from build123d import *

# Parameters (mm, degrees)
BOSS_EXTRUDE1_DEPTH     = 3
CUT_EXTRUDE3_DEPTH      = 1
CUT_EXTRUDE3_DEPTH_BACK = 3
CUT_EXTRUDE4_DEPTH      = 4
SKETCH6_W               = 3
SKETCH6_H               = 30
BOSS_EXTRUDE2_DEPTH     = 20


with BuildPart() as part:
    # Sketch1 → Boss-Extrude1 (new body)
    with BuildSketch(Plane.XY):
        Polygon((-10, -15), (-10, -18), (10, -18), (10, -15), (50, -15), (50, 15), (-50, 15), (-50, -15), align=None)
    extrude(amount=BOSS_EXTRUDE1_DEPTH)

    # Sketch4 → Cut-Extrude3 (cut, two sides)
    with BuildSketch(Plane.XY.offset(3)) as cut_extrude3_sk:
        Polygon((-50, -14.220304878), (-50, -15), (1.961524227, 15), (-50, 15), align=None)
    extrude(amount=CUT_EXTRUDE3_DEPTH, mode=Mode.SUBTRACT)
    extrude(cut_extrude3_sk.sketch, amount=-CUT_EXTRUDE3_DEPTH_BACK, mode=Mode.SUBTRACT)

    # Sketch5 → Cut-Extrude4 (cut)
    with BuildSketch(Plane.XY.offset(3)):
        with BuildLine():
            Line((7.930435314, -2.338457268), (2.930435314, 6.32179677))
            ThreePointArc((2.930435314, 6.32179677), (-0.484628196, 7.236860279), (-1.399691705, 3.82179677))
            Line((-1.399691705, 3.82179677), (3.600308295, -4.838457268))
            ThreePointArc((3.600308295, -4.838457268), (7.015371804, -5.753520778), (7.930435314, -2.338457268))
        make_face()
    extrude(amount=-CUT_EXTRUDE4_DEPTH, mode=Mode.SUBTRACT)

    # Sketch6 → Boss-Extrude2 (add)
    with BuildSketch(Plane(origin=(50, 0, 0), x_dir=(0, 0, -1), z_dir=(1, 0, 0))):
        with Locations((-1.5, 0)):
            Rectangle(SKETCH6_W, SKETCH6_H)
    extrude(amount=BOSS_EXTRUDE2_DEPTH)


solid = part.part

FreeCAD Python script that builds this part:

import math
import FreeCAD as App
import Part
import Sketcher
from FreeCAD import Vector
Q = App.Units.Quantity

doc = App.newDocument("Part")
body = doc.addObject("PartDesign::Body", "Body")

# Sketch on XY plane
sketch1 = body.newObject("Sketcher::SketchObject", "Sketch")
sketch1.AttachmentSupport = (doc.getObject("XY_Plane"), [""])
sketch1.MapMode = "FlatFace"
sketch1.addGeometry(Part.LineSegment(Vector(-10, -15, 0), Vector(-10, -18, 0)), False)
sketch1.addGeometry(Part.LineSegment(Vector(-10, -18, 0), Vector(10, -18, 0)), False)
sketch1.addGeometry(Part.LineSegment(Vector(10, -18, 0), Vector(10, -15, 0)), False)
sketch1.addGeometry(Part.LineSegment(Vector(10, -15, 0), Vector(50, -15, 0)), False)
sketch1.addGeometry(Part.LineSegment(Vector(50, -15, 0), Vector(50, 15, 0)), False)
sketch1.addGeometry(Part.LineSegment(Vector(50, 15, 0), Vector(-50, 15, 0)), False)
sketch1.addGeometry(Part.LineSegment(Vector(-50, 15, 0), Vector(-50, -15, 0)), False)
sketch1.addGeometry(Part.LineSegment(Vector(-50, -15, 0), Vector(-10, -15, 0)), False)
sketch1.addConstraint(Sketcher.Constraint("Coincident", 0, 2, 1, 1))
sketch1.addConstraint(Sketcher.Constraint("Coincident", 1, 2, 2, 1))
sketch1.addConstraint(Sketcher.Constraint("Coincident", 2, 2, 3, 1))
sketch1.addConstraint(Sketcher.Constraint("Coincident", 3, 2, 4, 1))
sketch1.addConstraint(Sketcher.Constraint("Coincident", 4, 2, 5, 1))
sketch1.addConstraint(Sketcher.Constraint("Coincident", 5, 2, 6, 1))
sketch1.addConstraint(Sketcher.Constraint("Coincident", 6, 2, 7, 1))
sketch1.addConstraint(Sketcher.Constraint("Coincident", 7, 2, 0, 1))
sketch1.addConstraint(Sketcher.Constraint("Vertical", 0))
sketch1.addConstraint(Sketcher.Constraint("Horizontal", 1))
sketch1.addConstraint(Sketcher.Constraint("Vertical", 2))
sketch1.addConstraint(Sketcher.Constraint("Horizontal", 3))
sketch1.addConstraint(Sketcher.Constraint("Vertical", 4))
sketch1.addConstraint(Sketcher.Constraint("Horizontal", 5))
sketch1.addConstraint(Sketcher.Constraint("Vertical", 6))
sketch1.addConstraint(Sketcher.Constraint("Horizontal", 7))
sketch1.addConstraint(Sketcher.Constraint("Symmetric", 3, 2, 5, 2, -1, 1))
sketch1.addConstraint(Sketcher.Constraint("Symmetric", 2, 2, 7, 2, -2))
sketch1.addConstraint(Sketcher.Constraint("DistanceX", 1, 1, 1, 2, 20.0))
sketch1.addConstraint(Sketcher.Constraint("DistanceX", 3, 1, 3, 2, 40.0))
sketch1.addConstraint(Sketcher.Constraint("DistanceY", 0, 2, 0, 1, 3.0))
sketch1.addConstraint(Sketcher.Constraint("DistanceY", 4, 1, 4, 2, 30.0))
pad1 = body.newObject("PartDesign::Pad", "Pad")
pad1.Profile = sketch1
pad1.Length = 3

# Sketch on XY plane
sketch2 = body.newObject("Sketcher::SketchObject", "Sketch001")
sketch2.AttachmentSupport = (doc.getObject("XY_Plane"), [""])
sketch2.MapMode = "FlatFace"
sketch2.AttachmentOffset = App.Placement(Vector(0, 0, 3), App.Rotation())
sketch2.addGeometry(Part.LineSegment(Vector(-50, -15, 0), Vector(2, 15, 0)), False)
sketch2.addGeometry(Part.LineSegment(Vector(2, 15, 0), Vector(-50, 15, 0)), False)
sketch2.addGeometry(Part.LineSegment(Vector(-50, 15, 0), Vector(-50, -15, 0)), False)
sketch2.addConstraint(Sketcher.Constraint("Coincident", 0, 2, 1, 1))
sketch2.addConstraint(Sketcher.Constraint("Coincident", 1, 2, 2, 1))
sketch2.addConstraint(Sketcher.Constraint("Coincident", 2, 2, 0, 1))
sketch2.addConstraint(Sketcher.Constraint("Horizontal", 1))
sketch2.addConstraint(Sketcher.Constraint("Vertical", 2))
sketch2.addConstraint(Sketcher.Constraint("DistanceY", 2, 2, 2, 1, 30.0))
sketch2.addConstraint(Sketcher.Constraint("Angle", 0, Q("30 deg")))
sketch2.addConstraint(Sketcher.Constraint("DistanceY", -1, 1, 0, 2, 15.0))
sketch2.addConstraint(Sketcher.Constraint("DistanceX", 1, 2, -1, 1, 50.0))
pocket1 = body.newObject("PartDesign::Pocket", "Pocket")
pocket1.Profile = sketch2
pocket1.Type = "ThroughAll"
pocket1.Midplane = True

# Sketch on XY plane
sketch3 = body.newObject("Sketcher::SketchObject", "Sketch002")
sketch3.AttachmentSupport = (doc.getObject("XY_Plane"), [""])
sketch3.MapMode = "FlatFace"
sketch3.AttachmentOffset = App.Placement(Vector(0, 0, 3), App.Rotation())
sketch3.addGeometry(Part.LineSegment(Vector(7.9, -2.3, 0), Vector(2.9, 6.3, 0)), False)
sketch3.addGeometry(Part.ArcOfCircle(Part.Circle(Vector(0.8, 5.1, 0), Vector(0, 0, 1), 2.5), math.radians(30), math.radians(210)), False)
sketch3.addGeometry(Part.LineSegment(Vector(-1.4, 3.8, 0), Vector(3.6, -4.8, 0)), False)
sketch3.addGeometry(Part.ArcOfCircle(Part.Circle(Vector(5.8, -3.6, 0), Vector(0, 0, 1), 2.5), math.radians(-150), math.radians(30)), False)
sketch3.addConstraint(Sketcher.Constraint("Tangent", 0, 2, 1, 1))
sketch3.addConstraint(Sketcher.Constraint("Tangent", 1, 2, 2, 1))
sketch3.addConstraint(Sketcher.Constraint("Tangent", 2, 2, 3, 1))
sketch3.addConstraint(Sketcher.Constraint("Tangent", 3, 2, 0, 1))
sketch3.addConstraint(Sketcher.Constraint("Equal", 1, 3))
sketch3.addConstraint(Sketcher.Constraint("Radius", 1, 2.5))
sketch3.addConstraint(Sketcher.Constraint("Angle", 0, Q("120 deg")))
sketch3.addConstraint(Sketcher.Constraint("Distance", 0, 10.0))
sketch3.addConstraint(Sketcher.Constraint("DistanceX", -1, 1, 1, 3, 0.765372))
sketch3.addConstraint(Sketcher.Constraint("DistanceY", -1, 1, 1, 3, 5.071797))
pocket2 = body.newObject("PartDesign::Pocket", "Pocket001")
pocket2.Profile = sketch3
pocket2.Length = 4

# Sketch on YZ plane
sketch4 = body.newObject("Sketcher::SketchObject", "Sketch003")
sketch4.AttachmentSupport = (doc.getObject("YZ_Plane"), [""])
sketch4.MapMode = "FlatFace"
sketch4.AttachmentOffset = App.Placement(Vector(0, 0, 50), App.Rotation())
sketch4.addGeometry(Part.LineSegment(Vector(15, 3, 0), Vector(-15, 3, 0)), False)
sketch4.addGeometry(Part.LineSegment(Vector(-15, 3, 0), Vector(-15, 0, 0)), False)
sketch4.addGeometry(Part.LineSegment(Vector(-15, 0, 0), Vector(15, 0, 0)), False)
sketch4.addGeometry(Part.LineSegment(Vector(15, 0, 0), Vector(15, 3, 0)), False)
sketch4.addConstraint(Sketcher.Constraint("Coincident", 0, 2, 1, 1))
sketch4.addConstraint(Sketcher.Constraint("Coincident", 1, 2, 2, 1))
sketch4.addConstraint(Sketcher.Constraint("Coincident", 2, 2, 3, 1))
sketch4.addConstraint(Sketcher.Constraint("Coincident", 3, 2, 0, 1))
sketch4.addConstraint(Sketcher.Constraint("Horizontal", 0))
sketch4.addConstraint(Sketcher.Constraint("Vertical", 1))
sketch4.addConstraint(Sketcher.Constraint("Horizontal", 2))
sketch4.addConstraint(Sketcher.Constraint("Vertical", 3))
sketch4.addConstraint(Sketcher.Constraint("Symmetric", 1, 2, 2, 2, -1, 1))
sketch4.addConstraint(Sketcher.Constraint("DistanceX", 0, 2, 0, 1, 30.0))
sketch4.addConstraint(Sketcher.Constraint("DistanceY", 1, 2, 1, 1, 3.0))
pad2 = body.newObject("PartDesign::Pad", "Pad001")
pad2.Profile = sketch4
pad2.Length = 20

doc.recompute()
